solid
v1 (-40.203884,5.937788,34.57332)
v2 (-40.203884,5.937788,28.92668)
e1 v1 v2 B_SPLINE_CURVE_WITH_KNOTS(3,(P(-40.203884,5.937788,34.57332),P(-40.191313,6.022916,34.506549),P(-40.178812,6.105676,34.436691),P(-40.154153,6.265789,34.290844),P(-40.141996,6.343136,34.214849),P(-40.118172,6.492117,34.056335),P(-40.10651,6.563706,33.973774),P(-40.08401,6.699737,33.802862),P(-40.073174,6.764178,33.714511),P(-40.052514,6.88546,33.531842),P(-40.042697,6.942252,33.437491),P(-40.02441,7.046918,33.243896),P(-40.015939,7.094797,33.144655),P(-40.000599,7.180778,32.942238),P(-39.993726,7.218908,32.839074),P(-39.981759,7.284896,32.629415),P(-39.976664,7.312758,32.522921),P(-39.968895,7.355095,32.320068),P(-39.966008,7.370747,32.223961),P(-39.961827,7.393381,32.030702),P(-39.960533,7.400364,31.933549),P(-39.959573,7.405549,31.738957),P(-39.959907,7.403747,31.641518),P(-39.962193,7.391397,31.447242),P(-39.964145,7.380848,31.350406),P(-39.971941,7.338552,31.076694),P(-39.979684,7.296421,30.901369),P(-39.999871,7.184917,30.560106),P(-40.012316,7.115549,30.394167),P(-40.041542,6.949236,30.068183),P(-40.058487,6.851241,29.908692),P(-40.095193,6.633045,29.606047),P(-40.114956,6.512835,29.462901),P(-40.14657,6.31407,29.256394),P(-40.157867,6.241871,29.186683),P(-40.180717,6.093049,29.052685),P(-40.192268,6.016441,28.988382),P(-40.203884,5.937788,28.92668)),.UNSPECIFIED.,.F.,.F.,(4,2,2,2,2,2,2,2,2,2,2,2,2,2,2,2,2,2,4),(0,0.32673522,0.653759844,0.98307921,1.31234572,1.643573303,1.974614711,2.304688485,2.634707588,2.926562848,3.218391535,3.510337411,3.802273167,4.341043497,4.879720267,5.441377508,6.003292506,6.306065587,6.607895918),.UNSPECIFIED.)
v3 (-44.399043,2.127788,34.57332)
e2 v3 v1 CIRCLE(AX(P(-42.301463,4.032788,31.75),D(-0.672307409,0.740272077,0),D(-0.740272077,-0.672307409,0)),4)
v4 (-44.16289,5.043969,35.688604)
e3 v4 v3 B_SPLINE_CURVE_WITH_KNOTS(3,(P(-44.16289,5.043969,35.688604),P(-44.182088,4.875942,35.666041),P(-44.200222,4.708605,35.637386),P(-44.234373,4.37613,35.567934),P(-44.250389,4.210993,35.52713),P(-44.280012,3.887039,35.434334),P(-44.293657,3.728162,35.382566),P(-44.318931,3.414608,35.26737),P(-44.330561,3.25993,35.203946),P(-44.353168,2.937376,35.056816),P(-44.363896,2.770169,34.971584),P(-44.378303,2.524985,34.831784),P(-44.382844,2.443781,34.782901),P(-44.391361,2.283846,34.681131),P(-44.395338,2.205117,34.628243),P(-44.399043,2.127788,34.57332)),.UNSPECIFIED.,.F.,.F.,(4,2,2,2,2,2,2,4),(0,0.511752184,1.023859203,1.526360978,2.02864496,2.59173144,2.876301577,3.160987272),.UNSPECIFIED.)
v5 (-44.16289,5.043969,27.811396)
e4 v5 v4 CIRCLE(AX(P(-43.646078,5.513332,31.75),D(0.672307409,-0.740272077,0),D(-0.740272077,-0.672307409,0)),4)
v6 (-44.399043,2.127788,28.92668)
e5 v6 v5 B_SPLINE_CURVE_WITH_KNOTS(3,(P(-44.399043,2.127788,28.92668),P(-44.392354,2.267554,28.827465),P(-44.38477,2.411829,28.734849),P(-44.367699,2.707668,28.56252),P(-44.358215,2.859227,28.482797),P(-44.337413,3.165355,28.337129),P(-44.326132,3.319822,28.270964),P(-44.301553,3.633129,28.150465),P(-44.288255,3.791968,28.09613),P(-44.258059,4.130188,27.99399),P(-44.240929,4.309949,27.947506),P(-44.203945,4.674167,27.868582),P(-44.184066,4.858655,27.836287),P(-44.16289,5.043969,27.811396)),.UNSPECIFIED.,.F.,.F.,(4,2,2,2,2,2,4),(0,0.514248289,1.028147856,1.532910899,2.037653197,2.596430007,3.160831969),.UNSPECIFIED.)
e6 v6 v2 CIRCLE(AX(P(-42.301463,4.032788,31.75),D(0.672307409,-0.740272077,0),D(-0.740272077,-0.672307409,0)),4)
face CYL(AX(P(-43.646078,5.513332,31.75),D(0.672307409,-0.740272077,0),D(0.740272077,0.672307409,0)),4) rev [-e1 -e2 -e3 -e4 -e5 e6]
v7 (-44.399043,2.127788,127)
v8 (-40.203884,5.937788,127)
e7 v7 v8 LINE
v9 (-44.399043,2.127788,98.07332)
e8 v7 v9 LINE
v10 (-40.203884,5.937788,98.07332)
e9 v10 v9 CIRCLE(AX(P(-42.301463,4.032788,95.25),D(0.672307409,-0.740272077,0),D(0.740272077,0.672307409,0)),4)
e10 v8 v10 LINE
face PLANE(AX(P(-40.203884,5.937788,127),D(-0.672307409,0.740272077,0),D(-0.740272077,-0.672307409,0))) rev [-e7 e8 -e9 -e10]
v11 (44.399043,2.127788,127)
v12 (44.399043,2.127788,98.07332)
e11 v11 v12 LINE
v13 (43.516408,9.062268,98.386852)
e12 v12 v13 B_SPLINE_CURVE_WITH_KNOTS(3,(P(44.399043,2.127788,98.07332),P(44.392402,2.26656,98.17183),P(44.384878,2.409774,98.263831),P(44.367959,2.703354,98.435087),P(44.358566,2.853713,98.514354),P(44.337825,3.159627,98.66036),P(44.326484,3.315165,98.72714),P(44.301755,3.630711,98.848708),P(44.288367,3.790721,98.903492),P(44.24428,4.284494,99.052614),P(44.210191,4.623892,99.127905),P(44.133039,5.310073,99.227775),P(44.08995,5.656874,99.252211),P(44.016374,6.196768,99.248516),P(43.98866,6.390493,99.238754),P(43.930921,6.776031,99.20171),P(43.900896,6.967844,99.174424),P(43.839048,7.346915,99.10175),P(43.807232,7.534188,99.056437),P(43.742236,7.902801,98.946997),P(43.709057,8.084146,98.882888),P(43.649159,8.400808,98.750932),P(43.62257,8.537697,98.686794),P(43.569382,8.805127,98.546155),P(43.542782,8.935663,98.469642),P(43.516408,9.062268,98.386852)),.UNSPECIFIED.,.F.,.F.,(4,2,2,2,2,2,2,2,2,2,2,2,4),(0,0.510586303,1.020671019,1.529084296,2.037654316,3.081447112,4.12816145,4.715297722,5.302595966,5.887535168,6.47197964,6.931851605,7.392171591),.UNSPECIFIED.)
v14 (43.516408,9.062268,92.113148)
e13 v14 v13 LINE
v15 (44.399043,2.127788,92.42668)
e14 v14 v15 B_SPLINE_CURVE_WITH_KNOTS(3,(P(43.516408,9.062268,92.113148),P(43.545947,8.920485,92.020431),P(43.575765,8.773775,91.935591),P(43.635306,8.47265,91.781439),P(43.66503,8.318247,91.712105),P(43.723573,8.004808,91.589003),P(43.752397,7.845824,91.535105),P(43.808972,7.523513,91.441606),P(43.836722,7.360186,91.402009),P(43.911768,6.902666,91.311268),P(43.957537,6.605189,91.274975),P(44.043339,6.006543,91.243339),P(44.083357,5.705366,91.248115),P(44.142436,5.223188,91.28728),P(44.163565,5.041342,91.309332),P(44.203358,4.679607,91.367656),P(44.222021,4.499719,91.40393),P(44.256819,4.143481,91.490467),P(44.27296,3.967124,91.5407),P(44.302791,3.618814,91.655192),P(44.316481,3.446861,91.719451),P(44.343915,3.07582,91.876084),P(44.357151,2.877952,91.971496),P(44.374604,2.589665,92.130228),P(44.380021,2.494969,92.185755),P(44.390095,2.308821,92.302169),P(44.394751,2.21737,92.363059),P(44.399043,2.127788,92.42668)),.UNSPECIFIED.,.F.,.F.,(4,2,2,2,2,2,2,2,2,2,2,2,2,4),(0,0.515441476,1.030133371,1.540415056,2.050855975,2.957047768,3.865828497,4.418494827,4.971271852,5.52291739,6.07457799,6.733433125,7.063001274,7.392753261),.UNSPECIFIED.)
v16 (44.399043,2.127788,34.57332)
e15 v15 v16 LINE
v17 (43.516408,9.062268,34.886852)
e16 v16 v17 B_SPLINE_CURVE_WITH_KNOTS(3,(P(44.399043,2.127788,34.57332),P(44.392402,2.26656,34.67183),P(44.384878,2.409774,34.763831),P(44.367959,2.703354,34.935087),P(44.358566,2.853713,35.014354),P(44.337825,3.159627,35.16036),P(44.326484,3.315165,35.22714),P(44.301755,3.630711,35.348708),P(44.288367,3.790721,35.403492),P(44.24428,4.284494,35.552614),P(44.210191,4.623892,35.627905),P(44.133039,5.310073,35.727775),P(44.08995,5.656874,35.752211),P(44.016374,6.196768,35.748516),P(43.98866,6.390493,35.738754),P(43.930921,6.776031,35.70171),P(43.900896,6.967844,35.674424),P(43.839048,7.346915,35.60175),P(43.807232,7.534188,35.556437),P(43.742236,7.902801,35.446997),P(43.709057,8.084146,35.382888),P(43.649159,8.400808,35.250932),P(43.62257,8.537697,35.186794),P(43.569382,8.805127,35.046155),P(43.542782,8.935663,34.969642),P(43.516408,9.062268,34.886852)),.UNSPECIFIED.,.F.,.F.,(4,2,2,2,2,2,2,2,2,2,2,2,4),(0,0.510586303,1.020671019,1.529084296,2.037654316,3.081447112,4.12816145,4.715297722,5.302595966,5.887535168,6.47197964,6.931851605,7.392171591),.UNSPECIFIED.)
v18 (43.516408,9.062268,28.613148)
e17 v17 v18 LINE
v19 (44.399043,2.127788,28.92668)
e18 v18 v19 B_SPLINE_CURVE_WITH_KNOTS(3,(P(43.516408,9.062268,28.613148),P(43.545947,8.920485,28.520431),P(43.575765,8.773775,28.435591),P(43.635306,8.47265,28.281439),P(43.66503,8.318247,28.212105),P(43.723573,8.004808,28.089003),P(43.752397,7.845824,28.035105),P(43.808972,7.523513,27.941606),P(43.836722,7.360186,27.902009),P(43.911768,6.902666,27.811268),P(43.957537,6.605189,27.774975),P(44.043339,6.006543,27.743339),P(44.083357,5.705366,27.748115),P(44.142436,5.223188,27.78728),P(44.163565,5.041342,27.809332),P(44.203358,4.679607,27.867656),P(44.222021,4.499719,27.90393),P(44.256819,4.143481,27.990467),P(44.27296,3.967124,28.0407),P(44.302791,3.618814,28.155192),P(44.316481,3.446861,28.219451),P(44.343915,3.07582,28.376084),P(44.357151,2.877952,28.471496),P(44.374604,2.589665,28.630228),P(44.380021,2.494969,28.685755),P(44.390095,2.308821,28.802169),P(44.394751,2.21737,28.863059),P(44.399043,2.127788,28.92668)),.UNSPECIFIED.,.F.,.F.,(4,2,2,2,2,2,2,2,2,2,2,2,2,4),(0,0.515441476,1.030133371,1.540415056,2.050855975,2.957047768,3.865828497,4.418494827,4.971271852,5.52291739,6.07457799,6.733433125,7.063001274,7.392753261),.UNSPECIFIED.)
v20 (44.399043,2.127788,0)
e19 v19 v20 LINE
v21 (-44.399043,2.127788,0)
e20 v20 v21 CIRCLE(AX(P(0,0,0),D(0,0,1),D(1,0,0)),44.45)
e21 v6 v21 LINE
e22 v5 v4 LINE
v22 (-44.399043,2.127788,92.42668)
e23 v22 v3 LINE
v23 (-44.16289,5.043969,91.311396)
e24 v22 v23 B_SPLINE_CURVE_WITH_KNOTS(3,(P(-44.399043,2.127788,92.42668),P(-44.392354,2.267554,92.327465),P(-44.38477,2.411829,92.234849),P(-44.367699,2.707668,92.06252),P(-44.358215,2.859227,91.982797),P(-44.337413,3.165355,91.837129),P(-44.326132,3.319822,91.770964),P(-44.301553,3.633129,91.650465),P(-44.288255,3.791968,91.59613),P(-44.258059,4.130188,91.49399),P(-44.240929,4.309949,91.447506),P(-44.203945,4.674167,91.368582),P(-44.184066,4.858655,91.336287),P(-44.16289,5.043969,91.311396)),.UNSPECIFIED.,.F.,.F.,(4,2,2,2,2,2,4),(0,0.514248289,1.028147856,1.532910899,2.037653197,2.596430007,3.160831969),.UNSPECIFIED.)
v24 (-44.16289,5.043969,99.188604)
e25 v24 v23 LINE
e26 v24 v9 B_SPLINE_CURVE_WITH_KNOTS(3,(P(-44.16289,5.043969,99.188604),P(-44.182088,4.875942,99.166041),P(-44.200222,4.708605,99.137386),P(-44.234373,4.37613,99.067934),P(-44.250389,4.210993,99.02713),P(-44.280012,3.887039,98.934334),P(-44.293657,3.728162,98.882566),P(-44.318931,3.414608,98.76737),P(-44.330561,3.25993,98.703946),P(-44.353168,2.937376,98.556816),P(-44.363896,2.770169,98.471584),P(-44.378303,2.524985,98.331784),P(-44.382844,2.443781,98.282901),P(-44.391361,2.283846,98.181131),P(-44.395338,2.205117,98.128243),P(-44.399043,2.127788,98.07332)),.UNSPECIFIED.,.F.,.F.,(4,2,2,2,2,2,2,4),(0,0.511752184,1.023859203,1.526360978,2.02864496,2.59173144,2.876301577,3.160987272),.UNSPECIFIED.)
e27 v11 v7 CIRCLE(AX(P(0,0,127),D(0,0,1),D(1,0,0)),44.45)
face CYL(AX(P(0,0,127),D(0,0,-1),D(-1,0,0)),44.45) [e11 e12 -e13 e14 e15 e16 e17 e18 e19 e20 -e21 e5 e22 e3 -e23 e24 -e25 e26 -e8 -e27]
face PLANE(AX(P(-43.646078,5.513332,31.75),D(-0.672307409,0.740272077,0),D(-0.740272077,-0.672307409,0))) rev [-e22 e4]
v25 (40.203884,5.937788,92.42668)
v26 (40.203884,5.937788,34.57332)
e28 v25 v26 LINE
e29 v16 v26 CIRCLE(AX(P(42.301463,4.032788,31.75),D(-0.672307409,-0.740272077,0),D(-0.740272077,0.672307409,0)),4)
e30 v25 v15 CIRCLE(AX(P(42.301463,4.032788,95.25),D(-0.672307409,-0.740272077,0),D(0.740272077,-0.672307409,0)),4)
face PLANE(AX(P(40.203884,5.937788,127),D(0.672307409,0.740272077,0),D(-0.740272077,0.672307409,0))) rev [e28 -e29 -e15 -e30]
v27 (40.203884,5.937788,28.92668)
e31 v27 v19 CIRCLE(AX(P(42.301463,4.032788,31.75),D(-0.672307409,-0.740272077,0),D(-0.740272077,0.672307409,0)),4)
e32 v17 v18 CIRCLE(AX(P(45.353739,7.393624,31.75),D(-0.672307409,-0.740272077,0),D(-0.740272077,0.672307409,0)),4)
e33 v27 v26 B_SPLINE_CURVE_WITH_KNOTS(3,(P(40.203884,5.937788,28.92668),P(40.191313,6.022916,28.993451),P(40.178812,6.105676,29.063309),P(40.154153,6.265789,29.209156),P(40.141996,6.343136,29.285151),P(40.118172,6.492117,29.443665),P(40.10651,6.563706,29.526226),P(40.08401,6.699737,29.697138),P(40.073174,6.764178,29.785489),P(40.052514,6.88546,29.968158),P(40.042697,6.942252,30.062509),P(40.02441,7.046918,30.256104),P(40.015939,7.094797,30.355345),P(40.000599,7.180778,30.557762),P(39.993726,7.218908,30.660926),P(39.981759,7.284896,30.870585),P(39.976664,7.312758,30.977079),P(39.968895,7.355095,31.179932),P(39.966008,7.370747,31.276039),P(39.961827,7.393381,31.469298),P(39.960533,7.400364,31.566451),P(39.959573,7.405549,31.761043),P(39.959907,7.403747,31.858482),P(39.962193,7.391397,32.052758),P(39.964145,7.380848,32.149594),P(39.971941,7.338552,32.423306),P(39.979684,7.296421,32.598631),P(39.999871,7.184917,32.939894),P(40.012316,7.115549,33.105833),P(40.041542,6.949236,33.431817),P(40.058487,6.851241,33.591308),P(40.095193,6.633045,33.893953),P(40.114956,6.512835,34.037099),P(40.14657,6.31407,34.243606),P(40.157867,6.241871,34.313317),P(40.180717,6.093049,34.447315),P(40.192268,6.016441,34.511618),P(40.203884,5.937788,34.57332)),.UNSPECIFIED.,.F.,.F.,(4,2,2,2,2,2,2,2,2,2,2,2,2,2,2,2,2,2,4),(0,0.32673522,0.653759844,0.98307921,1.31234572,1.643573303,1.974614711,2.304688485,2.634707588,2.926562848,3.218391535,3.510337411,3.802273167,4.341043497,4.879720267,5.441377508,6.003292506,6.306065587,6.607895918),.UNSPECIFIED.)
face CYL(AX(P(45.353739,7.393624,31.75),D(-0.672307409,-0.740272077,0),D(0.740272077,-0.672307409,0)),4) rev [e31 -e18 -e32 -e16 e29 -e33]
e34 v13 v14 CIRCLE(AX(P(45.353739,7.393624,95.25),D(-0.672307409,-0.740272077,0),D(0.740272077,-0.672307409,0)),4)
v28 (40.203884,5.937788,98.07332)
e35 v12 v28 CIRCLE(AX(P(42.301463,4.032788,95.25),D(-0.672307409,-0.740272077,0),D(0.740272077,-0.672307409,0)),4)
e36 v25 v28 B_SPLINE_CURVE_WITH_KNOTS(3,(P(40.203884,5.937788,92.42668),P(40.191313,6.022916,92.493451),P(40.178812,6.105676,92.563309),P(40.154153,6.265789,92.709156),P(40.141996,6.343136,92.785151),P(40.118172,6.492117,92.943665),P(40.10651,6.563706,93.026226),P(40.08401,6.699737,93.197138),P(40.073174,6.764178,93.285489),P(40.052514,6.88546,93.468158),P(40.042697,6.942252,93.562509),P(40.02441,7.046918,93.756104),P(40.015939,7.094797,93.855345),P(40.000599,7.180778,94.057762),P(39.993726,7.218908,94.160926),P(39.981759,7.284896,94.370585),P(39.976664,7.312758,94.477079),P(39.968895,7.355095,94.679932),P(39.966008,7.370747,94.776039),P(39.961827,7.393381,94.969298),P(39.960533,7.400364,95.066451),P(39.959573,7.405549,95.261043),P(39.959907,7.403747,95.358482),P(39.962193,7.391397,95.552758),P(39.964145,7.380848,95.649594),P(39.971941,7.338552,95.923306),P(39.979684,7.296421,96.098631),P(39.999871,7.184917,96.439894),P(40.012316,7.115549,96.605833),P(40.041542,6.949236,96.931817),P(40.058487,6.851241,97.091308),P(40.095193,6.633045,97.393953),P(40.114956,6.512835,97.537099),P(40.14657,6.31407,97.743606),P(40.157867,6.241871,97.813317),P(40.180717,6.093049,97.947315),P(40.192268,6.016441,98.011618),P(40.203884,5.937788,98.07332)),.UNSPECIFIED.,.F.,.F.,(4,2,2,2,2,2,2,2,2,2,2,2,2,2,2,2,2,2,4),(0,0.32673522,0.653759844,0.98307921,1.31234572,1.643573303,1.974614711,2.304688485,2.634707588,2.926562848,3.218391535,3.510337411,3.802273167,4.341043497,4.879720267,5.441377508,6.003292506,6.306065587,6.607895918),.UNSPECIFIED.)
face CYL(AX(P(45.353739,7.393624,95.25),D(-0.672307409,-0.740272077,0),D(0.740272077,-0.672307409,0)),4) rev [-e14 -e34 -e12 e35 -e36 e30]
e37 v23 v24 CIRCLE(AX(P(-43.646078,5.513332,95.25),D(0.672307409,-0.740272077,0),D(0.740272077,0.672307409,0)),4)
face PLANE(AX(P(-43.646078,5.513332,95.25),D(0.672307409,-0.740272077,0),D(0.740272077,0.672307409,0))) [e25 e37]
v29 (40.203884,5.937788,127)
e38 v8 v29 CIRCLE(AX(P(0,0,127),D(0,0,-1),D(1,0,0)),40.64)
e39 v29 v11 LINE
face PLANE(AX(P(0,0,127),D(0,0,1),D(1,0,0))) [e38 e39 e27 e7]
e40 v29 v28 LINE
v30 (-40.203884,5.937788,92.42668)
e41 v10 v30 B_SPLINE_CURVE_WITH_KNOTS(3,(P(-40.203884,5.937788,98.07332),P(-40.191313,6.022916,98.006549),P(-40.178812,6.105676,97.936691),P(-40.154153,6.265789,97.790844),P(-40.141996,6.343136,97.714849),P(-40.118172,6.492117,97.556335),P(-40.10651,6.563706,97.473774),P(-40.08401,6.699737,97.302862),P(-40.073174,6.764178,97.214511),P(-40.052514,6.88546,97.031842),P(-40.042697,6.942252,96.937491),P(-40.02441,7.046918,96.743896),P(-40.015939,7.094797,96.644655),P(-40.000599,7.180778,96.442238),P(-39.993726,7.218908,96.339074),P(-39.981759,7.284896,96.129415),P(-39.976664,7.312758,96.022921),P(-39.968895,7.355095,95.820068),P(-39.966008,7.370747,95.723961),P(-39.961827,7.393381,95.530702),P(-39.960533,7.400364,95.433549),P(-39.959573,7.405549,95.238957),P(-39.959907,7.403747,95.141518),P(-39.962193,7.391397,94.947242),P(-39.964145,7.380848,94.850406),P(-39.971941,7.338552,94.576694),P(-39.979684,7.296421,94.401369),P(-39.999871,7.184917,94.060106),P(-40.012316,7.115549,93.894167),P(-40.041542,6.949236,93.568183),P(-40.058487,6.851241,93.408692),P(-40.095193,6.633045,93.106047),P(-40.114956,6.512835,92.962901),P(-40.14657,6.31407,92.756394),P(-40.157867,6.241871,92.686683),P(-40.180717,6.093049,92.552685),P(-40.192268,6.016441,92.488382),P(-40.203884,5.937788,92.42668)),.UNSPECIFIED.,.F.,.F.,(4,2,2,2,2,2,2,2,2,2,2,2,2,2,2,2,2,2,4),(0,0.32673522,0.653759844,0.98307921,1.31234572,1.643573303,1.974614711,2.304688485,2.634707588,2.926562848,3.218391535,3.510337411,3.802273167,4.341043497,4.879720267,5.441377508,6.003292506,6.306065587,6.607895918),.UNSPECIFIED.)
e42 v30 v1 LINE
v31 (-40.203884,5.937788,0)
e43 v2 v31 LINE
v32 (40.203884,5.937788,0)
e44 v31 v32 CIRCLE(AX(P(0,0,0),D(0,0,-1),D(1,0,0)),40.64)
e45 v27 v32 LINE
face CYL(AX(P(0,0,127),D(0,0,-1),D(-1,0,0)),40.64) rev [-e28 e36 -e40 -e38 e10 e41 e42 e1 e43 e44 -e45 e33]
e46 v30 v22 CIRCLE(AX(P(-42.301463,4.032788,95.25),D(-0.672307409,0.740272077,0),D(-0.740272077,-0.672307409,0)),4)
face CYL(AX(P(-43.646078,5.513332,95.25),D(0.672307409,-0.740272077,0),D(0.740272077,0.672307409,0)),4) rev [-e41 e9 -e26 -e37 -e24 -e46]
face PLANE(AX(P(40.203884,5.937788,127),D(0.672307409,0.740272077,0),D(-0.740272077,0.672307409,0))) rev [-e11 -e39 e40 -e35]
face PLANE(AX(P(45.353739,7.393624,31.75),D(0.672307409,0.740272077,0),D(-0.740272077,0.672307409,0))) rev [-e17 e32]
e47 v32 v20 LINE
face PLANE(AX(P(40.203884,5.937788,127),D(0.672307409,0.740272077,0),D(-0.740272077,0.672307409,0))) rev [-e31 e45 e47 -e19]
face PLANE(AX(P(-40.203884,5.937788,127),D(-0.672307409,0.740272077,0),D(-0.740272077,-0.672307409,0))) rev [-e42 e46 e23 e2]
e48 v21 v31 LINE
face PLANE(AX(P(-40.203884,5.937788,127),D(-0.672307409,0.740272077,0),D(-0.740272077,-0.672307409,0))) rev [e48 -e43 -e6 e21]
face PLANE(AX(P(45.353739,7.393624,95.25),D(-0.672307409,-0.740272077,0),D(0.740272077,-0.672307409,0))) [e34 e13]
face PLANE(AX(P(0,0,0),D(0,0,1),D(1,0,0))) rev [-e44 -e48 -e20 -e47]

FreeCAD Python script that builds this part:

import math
import FreeCAD as App
import Part
import Sketcher

V = App.Vector
Q = App.Units.Quantity

doc = App.newDocument("Part")
params = doc.addObject("Spreadsheet::Sheet", "Params")
for row, (alias, value) in enumerate([
    ("sketch1_radius", "1.6 in"),
    ("sketch1_radius2", "1.75 in"),
    ("pad1_length", "5 in"),
    ("pocket1_length", "2 mm"),
    ("pocket2_length", "4.54 mm"),
], start=1):
    params.set(f"A{row}", alias)
    params.set(f"B{row}", "=" + value)
    params.setAlias(f"B{row}", alias)

body = doc.addObject("PartDesign::Body", "Body")

# Sketch on XY plane
sketch1 = body.newObject("Sketcher::SketchObject", "Sketch")
sketch1.AttachmentSupport = (doc.getObject("XY_Plane"), [""])
sketch1.MapMode = "FlatFace"
sketch1.addGeometry([
    Part.LineSegment(V(-44, 2, 0), V(-40, 6, 0)),
    Part.ArcOfCircle(Part.Circle(V(0, 0, 0), V(0, 0, 1), 41), math.radians(8), math.radians(172)),
    Part.LineSegment(V(40, 6, 0), V(44, 2, 0)),
    Part.ArcOfCircle(Part.Circle(V(0, 0, 0), V(0, 0, 1), 44), math.radians(3), math.radians(177)),
], False)
sketch1.addConstraint([
    Sketcher.Constraint("Coincident", 0, 2, 1, 2),
    Sketcher.Constraint("Coincident", 1, 1, 2, 1),
    Sketcher.Constraint("Coincident", 2, 2, 3, 1),
    Sketcher.Constraint("Coincident", 3, 2, 0, 1),
    Sketcher.Constraint("Coincident", 1, 3, -1, 1),
    Sketcher.Constraint("Coincident", 3, 3, -1, 1),
    Sketcher.Constraint("Horizontal", 0, 2, 1, 1),
    Sketcher.Constraint("Horizontal", 2, 2, 3, 2),
    Sketcher.Constraint("Radius", 1, Q("1.6 in")),
    Sketcher.Constraint("Radius", 3, Q("1.75 in")),
    Sketcher.Constraint("DistanceY", 2, 2, 1, 1, Q("0.15 in")),
    Sketcher.Constraint("Distance", 0, Q("5.66705 mm")),
])
sketch1.setExpression("Constraints[8]", "Params.sketch1_radius")
sketch1.setExpression("Constraints[9]", "Params.sketch1_radius2")
pad1 = body.newObject("PartDesign::Pad", "Pad")
pad1.Profile = sketch1
pad1.setExpression("Length", "Params.pad1_length")

# Sketch on an angled plane
sketch2 = body.newObject("Sketcher::SketchObject", "Sketch001")
sketch2.Placement = App.Placement(V(-21.127225, 23.263011, 0), App.Rotation(V(0.740272077, 0.672307409, 0), V(0, 0, 1), V(0.672307409, -0.740272077, 0), "ZXY"))
sketch2.addGeometry([
    Part.Circle(V(-28.6, 95.3, 0), V(0, 0, 1), 4),
    Part.Circle(V(-28.6, 31.8, 0), V(0, 0, 1), 4),
], False)
sketch2.addConstraint([
    Sketcher.Constraint("Equal", 0, 1),
    Sketcher.Constraint("Vertical", 0, 3, 1, 3),
    Sketcher.Constraint("DistanceY", 1, 3, 0, 3, Q("2.5 in")),
    Sketcher.Constraint("Diameter", 0, Q("8 mm")),
    Sketcher.Constraint("DistanceY", -1, 1, 0, 3, Q("3.75 in")),
    Sketcher.Constraint("DistanceX", 0, 3, -1, 1, Q("28.603319 mm")),
])
pocket1 = body.newObject("PartDesign::Pocket", "Pocket")
pocket1.Profile = sketch2
pocket1.setExpression("Length", "Params.pocket1_length")

# Sketch on an angled plane
sketch3 = body.newObject("Sketcher::SketchObject", "Sketch002")
sketch3.Placement = App.Placement(V(21.127225, 23.263011, 0), App.Rotation(V(-0.740272077, 0.672307409, 0), V(0, 0, -1), V(-0.672307409, -0.740272077, 0), "ZXY"))
sketch3.addGeometry([
    Part.Circle(V(-28.6, -95.3, 0), V(0, 0, 1), 4),
    Part.Circle(V(-28.6, -31.8, 0), V(0, 0, 1), 4),
], False)
sketch3.addConstraint([
    Sketcher.Constraint("Equal", 0, 1),
    Sketcher.Constraint("Vertical", 0, 3, 1, 3),
    Sketcher.Constraint("DistanceY", 0, 3, 1, 3, Q("2.5 in")),
    Sketcher.Constraint("Diameter", 0, Q("8 mm")),
    Sketcher.Constraint("DistanceY", 0, 3, -1, 1, Q("3.75 in")),
    Sketcher.Constraint("DistanceX", 0, 3, -1, 1, Q("28.603319 mm")),
])
pocket2 = body.newObject("PartDesign::Pocket", "Pocket001")
pocket2.Profile = sketch3
pocket2.setExpression("Length", "Params.pocket2_length")

doc.recompute()
